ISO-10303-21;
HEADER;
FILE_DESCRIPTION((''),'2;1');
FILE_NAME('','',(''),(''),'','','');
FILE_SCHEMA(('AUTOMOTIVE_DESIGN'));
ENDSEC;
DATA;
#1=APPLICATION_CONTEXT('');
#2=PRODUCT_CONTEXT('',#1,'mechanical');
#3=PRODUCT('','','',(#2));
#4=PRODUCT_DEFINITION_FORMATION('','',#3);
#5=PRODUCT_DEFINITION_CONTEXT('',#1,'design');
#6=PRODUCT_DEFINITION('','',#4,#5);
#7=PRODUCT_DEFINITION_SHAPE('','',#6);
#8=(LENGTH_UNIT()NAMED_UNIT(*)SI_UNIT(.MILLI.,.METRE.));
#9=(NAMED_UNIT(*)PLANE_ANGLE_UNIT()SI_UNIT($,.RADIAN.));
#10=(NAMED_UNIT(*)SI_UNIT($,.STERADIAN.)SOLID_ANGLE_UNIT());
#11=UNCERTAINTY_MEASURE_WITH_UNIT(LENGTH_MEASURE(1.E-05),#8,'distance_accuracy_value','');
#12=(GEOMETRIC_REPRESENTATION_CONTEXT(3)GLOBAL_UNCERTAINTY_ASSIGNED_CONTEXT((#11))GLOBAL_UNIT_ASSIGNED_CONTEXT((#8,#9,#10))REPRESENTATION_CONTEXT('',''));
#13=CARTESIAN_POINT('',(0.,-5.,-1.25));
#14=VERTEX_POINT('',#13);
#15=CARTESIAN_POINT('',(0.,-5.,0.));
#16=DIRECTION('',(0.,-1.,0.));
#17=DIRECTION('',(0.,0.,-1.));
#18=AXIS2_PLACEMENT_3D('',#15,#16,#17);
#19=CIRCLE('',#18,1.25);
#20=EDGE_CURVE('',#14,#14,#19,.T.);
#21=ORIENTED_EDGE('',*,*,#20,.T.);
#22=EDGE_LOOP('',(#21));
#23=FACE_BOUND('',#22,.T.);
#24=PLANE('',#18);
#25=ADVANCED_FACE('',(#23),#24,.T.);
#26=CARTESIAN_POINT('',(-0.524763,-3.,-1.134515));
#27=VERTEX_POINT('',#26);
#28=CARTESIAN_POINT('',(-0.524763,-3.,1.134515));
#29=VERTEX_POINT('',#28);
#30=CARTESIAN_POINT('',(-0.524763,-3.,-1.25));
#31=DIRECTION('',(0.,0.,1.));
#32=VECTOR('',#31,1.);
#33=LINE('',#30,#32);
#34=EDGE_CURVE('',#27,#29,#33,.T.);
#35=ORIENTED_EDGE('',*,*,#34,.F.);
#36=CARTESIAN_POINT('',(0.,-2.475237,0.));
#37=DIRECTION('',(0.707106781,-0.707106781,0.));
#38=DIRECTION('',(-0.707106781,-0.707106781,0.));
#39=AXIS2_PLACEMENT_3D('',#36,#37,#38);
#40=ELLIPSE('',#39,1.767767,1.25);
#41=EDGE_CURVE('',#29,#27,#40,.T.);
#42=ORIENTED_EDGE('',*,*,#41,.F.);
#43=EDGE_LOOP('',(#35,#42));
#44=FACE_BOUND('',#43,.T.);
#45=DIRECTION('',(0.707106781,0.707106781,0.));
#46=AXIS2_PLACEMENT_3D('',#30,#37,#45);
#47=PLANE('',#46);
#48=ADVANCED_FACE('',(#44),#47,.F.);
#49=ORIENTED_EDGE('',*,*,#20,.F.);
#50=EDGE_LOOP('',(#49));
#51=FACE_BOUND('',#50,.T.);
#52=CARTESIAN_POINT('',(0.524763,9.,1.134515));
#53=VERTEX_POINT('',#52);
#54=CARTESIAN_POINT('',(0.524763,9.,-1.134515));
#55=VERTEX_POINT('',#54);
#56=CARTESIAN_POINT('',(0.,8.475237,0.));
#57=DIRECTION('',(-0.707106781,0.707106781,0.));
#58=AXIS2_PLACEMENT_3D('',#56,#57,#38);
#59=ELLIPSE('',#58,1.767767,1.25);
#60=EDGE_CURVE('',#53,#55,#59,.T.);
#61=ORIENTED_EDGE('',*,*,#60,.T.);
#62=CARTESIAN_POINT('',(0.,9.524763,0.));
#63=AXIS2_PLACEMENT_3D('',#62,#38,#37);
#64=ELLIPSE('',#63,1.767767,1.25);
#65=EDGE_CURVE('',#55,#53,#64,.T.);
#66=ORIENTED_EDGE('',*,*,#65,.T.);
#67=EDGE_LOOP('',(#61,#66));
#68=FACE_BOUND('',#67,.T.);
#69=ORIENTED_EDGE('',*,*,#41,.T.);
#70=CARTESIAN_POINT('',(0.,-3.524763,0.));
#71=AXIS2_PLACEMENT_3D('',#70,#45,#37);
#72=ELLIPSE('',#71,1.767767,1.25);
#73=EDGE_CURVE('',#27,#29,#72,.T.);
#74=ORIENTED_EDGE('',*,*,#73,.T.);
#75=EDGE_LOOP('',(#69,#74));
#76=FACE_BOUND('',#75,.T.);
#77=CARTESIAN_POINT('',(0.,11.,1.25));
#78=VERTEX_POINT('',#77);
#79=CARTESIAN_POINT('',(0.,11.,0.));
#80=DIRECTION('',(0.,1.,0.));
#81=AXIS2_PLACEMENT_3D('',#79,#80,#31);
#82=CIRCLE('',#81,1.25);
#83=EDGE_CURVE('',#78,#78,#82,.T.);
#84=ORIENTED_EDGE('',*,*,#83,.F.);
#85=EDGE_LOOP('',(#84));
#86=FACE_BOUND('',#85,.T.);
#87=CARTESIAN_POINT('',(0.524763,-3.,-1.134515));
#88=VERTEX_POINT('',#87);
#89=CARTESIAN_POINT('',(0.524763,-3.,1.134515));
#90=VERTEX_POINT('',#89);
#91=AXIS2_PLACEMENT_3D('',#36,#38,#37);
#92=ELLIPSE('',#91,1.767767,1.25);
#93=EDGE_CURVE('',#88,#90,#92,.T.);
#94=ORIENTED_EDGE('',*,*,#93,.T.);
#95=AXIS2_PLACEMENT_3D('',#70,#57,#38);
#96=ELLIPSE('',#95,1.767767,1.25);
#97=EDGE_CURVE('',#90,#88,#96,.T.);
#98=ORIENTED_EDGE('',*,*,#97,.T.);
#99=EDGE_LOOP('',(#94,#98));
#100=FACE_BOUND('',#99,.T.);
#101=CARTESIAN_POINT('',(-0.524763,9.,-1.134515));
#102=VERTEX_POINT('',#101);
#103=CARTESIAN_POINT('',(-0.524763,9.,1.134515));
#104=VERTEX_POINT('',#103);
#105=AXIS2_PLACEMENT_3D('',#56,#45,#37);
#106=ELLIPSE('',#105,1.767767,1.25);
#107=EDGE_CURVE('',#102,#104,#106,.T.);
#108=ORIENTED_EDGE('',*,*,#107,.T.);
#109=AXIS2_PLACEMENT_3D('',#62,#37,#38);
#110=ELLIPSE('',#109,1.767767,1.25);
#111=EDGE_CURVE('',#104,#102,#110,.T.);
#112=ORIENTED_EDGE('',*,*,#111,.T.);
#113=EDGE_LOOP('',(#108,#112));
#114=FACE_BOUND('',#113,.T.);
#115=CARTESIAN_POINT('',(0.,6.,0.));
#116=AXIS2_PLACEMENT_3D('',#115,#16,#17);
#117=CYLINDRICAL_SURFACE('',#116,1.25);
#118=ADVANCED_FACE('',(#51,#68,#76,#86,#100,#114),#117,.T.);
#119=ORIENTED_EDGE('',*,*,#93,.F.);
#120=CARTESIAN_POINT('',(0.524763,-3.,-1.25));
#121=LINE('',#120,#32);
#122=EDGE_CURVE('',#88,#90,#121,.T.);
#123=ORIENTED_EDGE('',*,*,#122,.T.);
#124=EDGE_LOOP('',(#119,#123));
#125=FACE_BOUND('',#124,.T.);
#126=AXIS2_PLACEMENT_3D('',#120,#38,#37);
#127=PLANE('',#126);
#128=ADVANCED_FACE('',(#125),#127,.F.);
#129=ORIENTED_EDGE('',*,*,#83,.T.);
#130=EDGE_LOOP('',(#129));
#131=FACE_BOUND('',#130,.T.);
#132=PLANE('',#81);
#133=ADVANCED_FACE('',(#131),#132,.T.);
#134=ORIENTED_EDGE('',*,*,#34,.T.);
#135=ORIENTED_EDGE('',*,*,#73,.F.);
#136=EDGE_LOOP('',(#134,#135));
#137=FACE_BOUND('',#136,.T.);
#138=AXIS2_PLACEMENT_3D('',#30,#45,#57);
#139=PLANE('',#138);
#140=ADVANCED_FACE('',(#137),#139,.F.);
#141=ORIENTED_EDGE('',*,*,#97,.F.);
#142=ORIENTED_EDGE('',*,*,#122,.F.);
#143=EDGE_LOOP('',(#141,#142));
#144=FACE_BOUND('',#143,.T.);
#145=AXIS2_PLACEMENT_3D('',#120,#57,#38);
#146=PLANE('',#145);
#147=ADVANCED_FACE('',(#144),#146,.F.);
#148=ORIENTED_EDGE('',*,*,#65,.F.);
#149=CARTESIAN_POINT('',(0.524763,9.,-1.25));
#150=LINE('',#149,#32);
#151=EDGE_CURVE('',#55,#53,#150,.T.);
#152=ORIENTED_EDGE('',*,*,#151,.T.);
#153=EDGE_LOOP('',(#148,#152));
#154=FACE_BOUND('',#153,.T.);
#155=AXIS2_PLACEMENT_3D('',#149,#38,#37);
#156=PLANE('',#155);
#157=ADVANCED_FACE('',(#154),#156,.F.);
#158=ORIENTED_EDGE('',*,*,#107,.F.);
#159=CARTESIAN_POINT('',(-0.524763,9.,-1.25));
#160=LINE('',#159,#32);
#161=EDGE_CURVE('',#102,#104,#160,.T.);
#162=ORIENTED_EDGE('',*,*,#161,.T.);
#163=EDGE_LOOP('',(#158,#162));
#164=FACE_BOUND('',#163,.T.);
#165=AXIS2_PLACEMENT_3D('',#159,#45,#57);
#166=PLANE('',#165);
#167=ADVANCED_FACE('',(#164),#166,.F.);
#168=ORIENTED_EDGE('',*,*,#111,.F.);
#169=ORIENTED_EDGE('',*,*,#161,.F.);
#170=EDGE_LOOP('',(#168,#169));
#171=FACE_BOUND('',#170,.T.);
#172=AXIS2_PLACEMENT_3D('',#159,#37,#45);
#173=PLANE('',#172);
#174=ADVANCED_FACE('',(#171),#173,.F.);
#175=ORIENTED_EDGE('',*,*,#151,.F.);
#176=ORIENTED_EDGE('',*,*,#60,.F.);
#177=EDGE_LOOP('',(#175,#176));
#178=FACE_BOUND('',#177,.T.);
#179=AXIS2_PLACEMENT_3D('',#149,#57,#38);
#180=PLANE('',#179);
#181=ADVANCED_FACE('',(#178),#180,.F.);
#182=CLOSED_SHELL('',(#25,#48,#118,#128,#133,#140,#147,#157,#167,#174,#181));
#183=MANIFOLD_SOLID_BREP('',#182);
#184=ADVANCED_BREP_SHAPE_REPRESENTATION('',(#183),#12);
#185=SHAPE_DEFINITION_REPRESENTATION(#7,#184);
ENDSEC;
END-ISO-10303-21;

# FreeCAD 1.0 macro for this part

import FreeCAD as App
import Part
import Sketcher
Q = App.Units.Quantity


def add_polygon(sketch, points):
    """Adds a closed chain of lines whose ends are joined by coincident constraints."""
    first, n = sketch.GeometryCount, len(points)
    for a, b in zip(points, points[1:] + points[:1]):
        sketch.addGeometry(Part.LineSegment(App.Vector(*a, 0), App.Vector(*b, 0)), False)
    for i in range(n):
        sketch.addConstraint(Sketcher.Constraint("Coincident", first + i, 2, first + (i + 1) % n, 1))

doc = App.newDocument("Part")
body = doc.addObject("PartDesign::Body", "Body")

# Sketch on XZ plane
sketch1 = doc.addObject("Sketcher::SketchObject", "Sketch")
body.addObject(sketch1)
sketch1.AttachmentSupport = (doc.XZ_Plane, [""])
sketch1.MapMode = "FlatFace"
sketch1.addGeometry(Part.Circle(App.Vector(0, 0, 0), App.Vector(0, 0, 1), 1.25), False)
sketch1.addConstraint([
    Sketcher.Constraint("Coincident", 0, 3, -1, 1),
    Sketcher.Constraint("Diameter", 0, Q("2.5 mm")),
])
pad1 = doc.addObject("PartDesign::Pad", "Pad")
body.addObject(pad1)
pad1.Profile = sketch1
pad1.Length = 6
pad1.Reversed = True

# Sketch on XZ plane
sketch2 = doc.addObject("Sketcher::SketchObject", "Sketch001")
body.addObject(sketch2)
sketch2.AttachmentSupport = (doc.XZ_Plane, [""])
sketch2.MapMode = "FlatFace"
sketch2.addGeometry(Part.Circle(App.Vector(0, 0, 0), App.Vector(0, 0, 1), 1.25), False)
sketch2.addConstraint([
    Sketcher.Constraint("Coincident", 0, 3, -1, 1),
    Sketcher.Constraint("Diameter", 0, Q("2.5 mm")),
])
pad2 = doc.addObject("PartDesign::Pad", "Pad001")
body.addObject(pad2)
pad2.Profile = sketch2
pad2.Length = 5

# Sketch on XZ plane
sketch3 = doc.addObject("Sketcher::SketchObject", "Sketch002")
body.addObject(sketch3)
sketch3.AttachmentSupport = (doc.XZ_Plane, [""])
sketch3.MapMode = "FlatFace"
sketch3.AttachmentOffset = App.Placement(App.Vector(0, 0, -6), App.Rotation())
sketch3.addGeometry(Part.Circle(App.Vector(0, 0, 0), App.Vector(0, 0, 1), 1.25), False)
sketch3.addConstraint([
    Sketcher.Constraint("Coincident", 0, 3, -1, 1),
    Sketcher.Constraint("Diameter", 0, Q("2.5 mm")),
])
pad3 = doc.addObject("PartDesign::Pad", "Pad002")
body.addObject(pad3)
pad3.Profile = sketch3
pad3.Length = 5
pad3.Reversed = True

# Sketch on XY plane
sketch4 = doc.addObject("Sketcher::SketchObject", "Sketch003")
body.addObject(sketch4)
sketch4.AttachmentSupport = (doc.XY_Plane, [""])
sketch4.MapMode = "FlatFace"
add_polygon(sketch4, [(1.25, 9.725237), (0.524763, 9), (1.25, 8.274763)])  # lines 0-2
add_polygon(sketch4, [(-1.25, 8.274763), (-0.524763, 9), (-1.25, 9.725237)])  # lines 3-5
add_polygon(sketch4, [(-1.25, -3.725237), (-0.524763, -3), (-1.25, -2.274763)])  # lines 6-8
add_polygon(sketch4, [(1.25, -2.274763), (0.524763, -3), (1.25, -3.725237)])  # lines 9-11
sketch4.addConstraint([
    Sketcher.Constraint("Vertical", 2),
    Sketcher.Constraint("Vertical", 5),
    Sketcher.Constraint("Vertical", 8),
    Sketcher.Constraint("Vertical", 11),
    Sketcher.Constraint("Symmetric", 0, 2, 3, 2, -2),
    Sketcher.Constraint("Symmetric", 2, 2, 4, 2, -2),
    Sketcher.Constraint("Symmetric", 6, 2, 9, 2, -2),
    Sketcher.Constraint("Symmetric", 8, 2, 10, 2, -2),
    Sketcher.Constraint("Perpendicular", 0, 1),
    Sketcher.Constraint("Perpendicular", 1, 3),
    Sketcher.Constraint("Perpendicular", 3, 4),
    Sketcher.Constraint("Perpendicular", 4, 6),
    Sketcher.Constraint("Perpendicular", 6, 7),
    Sketcher.Constraint("Perpendicular", 7, 9),
    Sketcher.Constraint("Vertical", 3, 2, 6, 2),
    Sketcher.Constraint("Vertical", 5, 2, 7, 2),
    Sketcher.Constraint("DistanceY", -1, 1, 0, 2, Q("9 mm")),
    Sketcher.Constraint("DistanceY", 6, 2, -1, 1, Q("3 mm")),
    Sketcher.Constraint("DistanceX", 4, 2, 2, 2, Q("2.5 mm")),
    Sketcher.Constraint("Distance", 0, Q("1.02564 mm")),
])
pocket1 = doc.addObject("PartDesign::Pocket", "Pocket")
body.addObject(pocket1)
pocket1.Profile = sketch4
pocket1.Type = "ThroughAll"
pocket1.Midplane = True

doc.recompute()
